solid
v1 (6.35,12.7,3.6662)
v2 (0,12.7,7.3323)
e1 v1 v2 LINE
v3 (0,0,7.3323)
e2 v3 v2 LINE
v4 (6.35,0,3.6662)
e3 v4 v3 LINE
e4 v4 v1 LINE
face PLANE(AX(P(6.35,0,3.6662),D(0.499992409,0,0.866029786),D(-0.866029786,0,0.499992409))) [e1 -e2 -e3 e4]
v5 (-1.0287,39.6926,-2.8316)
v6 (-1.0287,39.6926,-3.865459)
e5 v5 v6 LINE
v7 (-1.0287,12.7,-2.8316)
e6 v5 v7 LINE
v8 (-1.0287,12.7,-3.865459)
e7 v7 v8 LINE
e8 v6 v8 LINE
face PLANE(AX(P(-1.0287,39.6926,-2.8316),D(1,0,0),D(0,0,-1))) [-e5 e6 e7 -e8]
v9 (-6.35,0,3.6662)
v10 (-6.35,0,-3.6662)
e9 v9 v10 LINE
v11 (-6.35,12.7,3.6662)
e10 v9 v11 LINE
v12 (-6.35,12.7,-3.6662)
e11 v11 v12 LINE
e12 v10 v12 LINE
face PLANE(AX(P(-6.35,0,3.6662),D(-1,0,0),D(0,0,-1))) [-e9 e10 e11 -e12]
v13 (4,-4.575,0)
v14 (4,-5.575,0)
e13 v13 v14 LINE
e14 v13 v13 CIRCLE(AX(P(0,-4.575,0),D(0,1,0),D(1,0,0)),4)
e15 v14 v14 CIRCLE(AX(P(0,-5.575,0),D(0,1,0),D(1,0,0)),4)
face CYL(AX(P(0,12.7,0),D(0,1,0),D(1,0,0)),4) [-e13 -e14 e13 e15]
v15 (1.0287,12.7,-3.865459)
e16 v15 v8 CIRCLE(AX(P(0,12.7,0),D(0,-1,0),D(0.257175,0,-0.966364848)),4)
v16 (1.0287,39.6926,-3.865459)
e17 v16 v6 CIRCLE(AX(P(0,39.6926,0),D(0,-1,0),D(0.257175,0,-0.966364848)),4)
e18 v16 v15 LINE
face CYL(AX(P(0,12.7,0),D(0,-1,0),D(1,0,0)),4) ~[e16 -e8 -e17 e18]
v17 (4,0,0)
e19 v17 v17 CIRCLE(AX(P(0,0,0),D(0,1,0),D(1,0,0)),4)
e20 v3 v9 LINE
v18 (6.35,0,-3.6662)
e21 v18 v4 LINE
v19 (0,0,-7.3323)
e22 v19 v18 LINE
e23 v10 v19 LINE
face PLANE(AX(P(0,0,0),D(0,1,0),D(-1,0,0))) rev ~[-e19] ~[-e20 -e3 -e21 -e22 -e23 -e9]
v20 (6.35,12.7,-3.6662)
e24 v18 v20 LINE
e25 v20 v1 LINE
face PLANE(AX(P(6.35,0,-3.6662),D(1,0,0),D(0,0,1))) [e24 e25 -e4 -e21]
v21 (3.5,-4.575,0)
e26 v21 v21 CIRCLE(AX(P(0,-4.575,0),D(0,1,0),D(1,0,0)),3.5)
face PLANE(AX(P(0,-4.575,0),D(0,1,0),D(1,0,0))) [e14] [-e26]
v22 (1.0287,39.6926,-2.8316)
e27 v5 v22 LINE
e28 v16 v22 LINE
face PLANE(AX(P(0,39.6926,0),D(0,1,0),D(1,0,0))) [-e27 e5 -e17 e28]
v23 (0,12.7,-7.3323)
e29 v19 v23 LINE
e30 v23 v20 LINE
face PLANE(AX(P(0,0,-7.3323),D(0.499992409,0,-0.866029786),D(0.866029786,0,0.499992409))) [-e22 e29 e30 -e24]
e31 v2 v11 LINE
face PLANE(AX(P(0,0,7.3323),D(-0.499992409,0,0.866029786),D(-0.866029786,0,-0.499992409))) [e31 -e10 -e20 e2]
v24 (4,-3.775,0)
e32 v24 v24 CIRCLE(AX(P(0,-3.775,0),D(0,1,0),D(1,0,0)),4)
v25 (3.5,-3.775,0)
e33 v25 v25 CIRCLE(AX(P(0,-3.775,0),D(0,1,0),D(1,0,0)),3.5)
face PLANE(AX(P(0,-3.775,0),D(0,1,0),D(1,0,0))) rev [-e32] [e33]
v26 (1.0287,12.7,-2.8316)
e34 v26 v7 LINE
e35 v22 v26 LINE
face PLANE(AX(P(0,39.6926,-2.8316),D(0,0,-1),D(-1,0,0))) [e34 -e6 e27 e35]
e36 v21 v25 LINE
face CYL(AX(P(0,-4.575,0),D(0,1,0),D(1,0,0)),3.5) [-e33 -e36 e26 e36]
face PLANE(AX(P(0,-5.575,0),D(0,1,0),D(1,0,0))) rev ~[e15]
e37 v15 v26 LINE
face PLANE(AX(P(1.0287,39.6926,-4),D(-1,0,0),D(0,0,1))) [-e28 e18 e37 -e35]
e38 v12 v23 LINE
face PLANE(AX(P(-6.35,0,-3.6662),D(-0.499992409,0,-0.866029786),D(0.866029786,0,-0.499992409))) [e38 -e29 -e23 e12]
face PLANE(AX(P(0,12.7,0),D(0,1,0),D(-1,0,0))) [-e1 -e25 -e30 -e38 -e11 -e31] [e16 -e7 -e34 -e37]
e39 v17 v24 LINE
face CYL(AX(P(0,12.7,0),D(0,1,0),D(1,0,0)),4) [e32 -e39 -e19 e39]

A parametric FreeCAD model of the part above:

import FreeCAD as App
import Part
import Sketcher

V = App.Vector
Q = App.Units.Quantity

doc = App.newDocument("Part")
body = doc.addObject("PartDesign::Body", "Body")

# Sketch on XZ plane
sketch1 = doc.addObject("Sketcher::SketchObject", "Sketch")
body.addObject(sketch1)
sketch1.AttachmentSupport = (doc.XZ_Plane, [""])
sketch1.MapMode = "FlatFace"
sketch1.addGeometry([
    Part.LineSegment(V(6, -4, 0), V(0, -7, 0)),  # 0
    Part.LineSegment(V(0, -7, 0), V(-6, -4, 0)),  # 1
    Part.LineSegment(V(-6, -4, 0), V(-6, 4, 0)),  # 2
    Part.LineSegment(V(-6, 4, 0), V(0, 7, 0)),  # 3
    Part.LineSegment(V(0, 7, 0), V(6, 4, 0)),  # 4
    Part.LineSegment(V(6, 4, 0), V(6, -4, 0)),  # 5
], False)
sketch1.addConstraint([
    Sketcher.Constraint("Coincident", 0, 2, 1, 1),
    Sketcher.Constraint("Coincident", 1, 2, 2, 1),
    Sketcher.Constraint("Coincident", 2, 2, 3, 1),
    Sketcher.Constraint("Coincident", 3, 2, 4, 1),
    Sketcher.Constraint("Coincident", 4, 2, 5, 1),
    Sketcher.Constraint("Coincident", 5, 2, 0, 1),
    Sketcher.Constraint("Vertical", 2),
    Sketcher.Constraint("Vertical", 5),
    Sketcher.Constraint("Symmetric", 0, 2, 3, 2, -1, 1),
    Sketcher.Constraint("Symmetric", 1, 2, 4, 2, -1, 1),
    Sketcher.Constraint("PointOnObject", 0, 2, -2),
    Sketcher.Constraint("Parallel", 0, 3),
    Sketcher.Constraint("Horizontal", 2, 2, 4, 2),
    Sketcher.Constraint("DistanceX", 2, 2, 4, 2, Q("0.5 in")),
    Sketcher.Constraint("Angle", 0, Q("-150.0005 deg")),
    Sketcher.Constraint("DistanceY", 0, 2, 2, 2, Q("0.433 in")),
])
pad1 = doc.addObject("PartDesign::Pad", "Pad")
body.addObject(pad1)
pad1.Profile = sketch1
pad1.Length = Q("0.5 in")
pad1.Reversed = True

# Sketch on XZ plane
sketch2 = doc.addObject("Sketcher::SketchObject", "Sketch001")
body.addObject(sketch2)
sketch2.AttachmentSupport = (doc.XZ_Plane, [""])
sketch2.MapMode = "FlatFace"
sketch2.AttachmentOffset = App.Placement(V(0, 0, -0.5 * 25.4), App.Rotation())
sketch2.addGeometry(Part.Circle(V(0, 0, 0), V(0, 0, 1), 4), False)
sketch2.addConstraint([
    Sketcher.Constraint("Coincident", 0, 3, -1, 1),
    Sketcher.Constraint("Diameter", 0, Q("8 mm")),
])
pad2 = doc.addObject("PartDesign::Pad", "Pad001")
body.addObject(pad2)
pad2.Profile = sketch2
pad2.Type = "TwoLengths"
pad2.Length = Q("1.0627008 in")
pad2.Length2 = Q("0.7194882 in")
pad2.Reversed = True

# Sketch on XZ plane
sketch3 = doc.addObject("Sketcher::SketchObject", "Sketch002")
body.addObject(sketch3)
sketch3.AttachmentSupport = (doc.XZ_Plane, [""])
sketch3.MapMode = "FlatFace"
sketch3.AttachmentOffset = App.Placement(V(0, 0, -1.5627008 * 25.4), App.Rotation())
sketch3.addGeometry([
    Part.LineSegment(V(-1, -4, 0), V(-1, -2.8, 0)),
    Part.LineSegment(V(-1, -2.8, 0), V(1, -2.8, 0)),
    Part.LineSegment(V(1, -2.8, 0), V(1, -4, 0)),
    Part.LineSegment(V(1, -4, 0), V(-1, -4, 0)),
], False)
sketch3.addConstraint([
    Sketcher.Constraint("Coincident", 0, 2, 1, 1),
    Sketcher.Constraint("Coincident", 1, 2, 2, 1),
    Sketcher.Constraint("Coincident", 2, 2, 3, 1),
    Sketcher.Constraint("Coincident", 3, 2, 0, 1),
    Sketcher.Constraint("Vertical", 0),
    Sketcher.Constraint("Horizontal", 1),
    Sketcher.Constraint("Vertical", 2),
    Sketcher.Constraint("Horizontal", 3),
    Sketcher.Constraint("DistanceX", 1, 1, 1, 2, Q("0.081 in")),
    Sketcher.Constraint("DistanceY", 0, 1, 0, 2, Q("0.046 in")),
    Sketcher.Constraint("DistanceX", 0, 2, -1, 1, Q("0.0405 in")),
    Sketcher.Constraint("DistanceY", 0, 2, -1, 1, Q("2.8316 mm")),
])
pocket1 = doc.addObject("PartDesign::Pocket", "Pocket")
body.addObject(pocket1)
pocket1.Profile = sketch3
pocket1.Length = Q("1.0627008 in")
pocket1.Reversed = True

# Sketch on XY plane
sketch4 = doc.addObject("Sketcher::SketchObject", "Sketch003")
body.addObject(sketch4)
sketch4.AttachmentSupport = (doc.XY_Plane, [""])
sketch4.MapMode = "FlatFace"
sketch4.addGeometry([
    Part.LineSegment(V(3.5, -4.6, 0), V(4, -4.6, 0)),
    Part.LineSegment(V(4, -4.6, 0), V(4, -3.8, 0)),
    Part.LineSegment(V(4, -3.8, 0), V(3.5, -3.8, 0)),
    Part.LineSegment(V(3.5, -3.8, 0), V(3.5, -4.6, 0)),
], False)
sketch4.addConstraint([
    Sketcher.Constraint("Coincident", 0, 2, 1, 1),
    Sketcher.Constraint("Coincident", 1, 2, 2, 1),
    Sketcher.Constraint("Coincident", 2, 2, 3, 1),
    Sketcher.Constraint("Coincident", 3, 2, 0, 1),
    Sketcher.Constraint("Horizontal", 0),
    Sketcher.Constraint("Vertical", 1),
    Sketcher.Constraint("Horizontal", 2),
    Sketcher.Constraint("Vertical", 3),
    Sketcher.Constraint("DistanceY", 1, 1, 1, 2, Q("0.0315 in")),
    Sketcher.Constraint("DistanceX", 0, 1, 0, 2, Q("0.5 mm")),
    Sketcher.Constraint("DistanceX", -1, 1, 2, 2, Q("0.1378 in")),
    Sketcher.Constraint("DistanceY", 0, 2, -1, 1, Q("4.575 mm")),
])
groove = doc.addObject("PartDesign::Groove", "Groove")
body.addObject(groove)
groove.Profile = sketch4
groove.ReferenceAxis = (sketch4, ["V_Axis"])
groove.Angle = 360

doc.recompute()
